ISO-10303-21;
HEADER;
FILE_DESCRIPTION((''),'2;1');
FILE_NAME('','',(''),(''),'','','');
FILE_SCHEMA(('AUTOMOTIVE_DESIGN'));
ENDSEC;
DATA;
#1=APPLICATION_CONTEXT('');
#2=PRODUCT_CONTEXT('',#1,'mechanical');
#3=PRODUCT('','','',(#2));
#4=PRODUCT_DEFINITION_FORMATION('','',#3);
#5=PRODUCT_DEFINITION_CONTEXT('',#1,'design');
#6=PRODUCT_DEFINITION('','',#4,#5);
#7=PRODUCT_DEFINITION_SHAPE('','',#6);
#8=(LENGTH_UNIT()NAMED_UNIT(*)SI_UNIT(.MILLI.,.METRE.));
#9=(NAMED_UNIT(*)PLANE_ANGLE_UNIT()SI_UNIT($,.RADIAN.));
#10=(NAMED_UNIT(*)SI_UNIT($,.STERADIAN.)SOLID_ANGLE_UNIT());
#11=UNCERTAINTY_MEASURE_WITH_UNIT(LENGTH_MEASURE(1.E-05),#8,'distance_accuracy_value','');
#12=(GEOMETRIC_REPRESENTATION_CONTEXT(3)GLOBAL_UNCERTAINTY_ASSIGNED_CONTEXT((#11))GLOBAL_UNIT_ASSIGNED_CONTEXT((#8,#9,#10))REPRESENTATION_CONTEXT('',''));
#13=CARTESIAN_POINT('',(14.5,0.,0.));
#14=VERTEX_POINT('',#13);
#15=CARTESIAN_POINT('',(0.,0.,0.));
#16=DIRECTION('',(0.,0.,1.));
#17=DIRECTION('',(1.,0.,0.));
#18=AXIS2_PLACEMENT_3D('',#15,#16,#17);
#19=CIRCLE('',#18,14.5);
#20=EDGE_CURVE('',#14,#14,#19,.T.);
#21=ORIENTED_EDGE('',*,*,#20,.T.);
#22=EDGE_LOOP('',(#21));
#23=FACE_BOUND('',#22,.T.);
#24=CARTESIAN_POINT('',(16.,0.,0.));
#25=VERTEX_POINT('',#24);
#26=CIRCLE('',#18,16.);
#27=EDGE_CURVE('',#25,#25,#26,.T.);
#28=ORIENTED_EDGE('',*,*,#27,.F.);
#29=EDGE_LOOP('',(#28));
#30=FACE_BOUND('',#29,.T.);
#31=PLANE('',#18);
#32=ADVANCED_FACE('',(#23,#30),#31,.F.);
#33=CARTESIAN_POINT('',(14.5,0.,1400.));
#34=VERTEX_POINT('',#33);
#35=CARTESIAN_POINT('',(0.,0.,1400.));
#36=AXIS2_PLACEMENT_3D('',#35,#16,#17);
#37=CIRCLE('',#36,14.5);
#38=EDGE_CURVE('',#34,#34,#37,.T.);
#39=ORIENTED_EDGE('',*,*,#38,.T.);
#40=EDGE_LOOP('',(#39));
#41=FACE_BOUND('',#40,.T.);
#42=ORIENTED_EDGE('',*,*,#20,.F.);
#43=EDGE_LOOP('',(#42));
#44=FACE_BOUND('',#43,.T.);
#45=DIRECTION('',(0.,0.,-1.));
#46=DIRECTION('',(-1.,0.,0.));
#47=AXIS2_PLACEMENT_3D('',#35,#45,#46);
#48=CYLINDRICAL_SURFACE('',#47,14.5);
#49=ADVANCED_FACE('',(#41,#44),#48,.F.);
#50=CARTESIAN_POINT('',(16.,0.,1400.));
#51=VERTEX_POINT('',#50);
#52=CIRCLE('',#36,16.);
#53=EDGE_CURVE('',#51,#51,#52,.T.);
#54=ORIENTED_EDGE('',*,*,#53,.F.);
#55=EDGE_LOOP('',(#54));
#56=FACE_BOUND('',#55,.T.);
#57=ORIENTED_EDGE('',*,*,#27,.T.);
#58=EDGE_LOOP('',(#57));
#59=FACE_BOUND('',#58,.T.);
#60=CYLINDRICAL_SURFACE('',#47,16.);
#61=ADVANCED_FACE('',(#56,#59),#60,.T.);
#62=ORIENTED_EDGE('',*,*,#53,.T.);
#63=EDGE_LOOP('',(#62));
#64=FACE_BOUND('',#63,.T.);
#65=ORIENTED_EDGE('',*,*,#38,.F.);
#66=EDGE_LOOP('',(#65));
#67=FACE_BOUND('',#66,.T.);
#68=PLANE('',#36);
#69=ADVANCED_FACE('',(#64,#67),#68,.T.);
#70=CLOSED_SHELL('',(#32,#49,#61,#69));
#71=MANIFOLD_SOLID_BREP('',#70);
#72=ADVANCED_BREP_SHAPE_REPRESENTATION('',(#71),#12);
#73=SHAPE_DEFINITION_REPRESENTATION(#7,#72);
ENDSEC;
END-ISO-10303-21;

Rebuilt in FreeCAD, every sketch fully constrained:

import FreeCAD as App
import Part
import Sketcher
from FreeCAD import Vector

doc = App.newDocument("Part")
body = doc.addObject("PartDesign::Body", "Body")

# Sketch on XY plane
sketch1 = body.newObject("Sketcher::SketchObject", "Sketch")
sketch1.AttachmentSupport = (doc.getObject("XY_Plane"), [""])
sketch1.MapMode = "FlatFace"
sketch1.addGeometry([
    Part.Circle(Vector(0, 0, 0), Vector(0, 0, 1), 16),
    Part.Circle(Vector(0, 0, 0), Vector(0, 0, 1), 14),
], False)
sketch1.addConstraint([
    Sketcher.Constraint("Coincident", 0, 3, -1, 1),
    Sketcher.Constraint("Coincident", 1, 3, -1, 1),
    Sketcher.Constraint("Diameter", 0, 32.0),
    Sketcher.Constraint("Diameter", 1, 29.0),
])
pad1 = body.newObject("PartDesign::Pad", "Pad")
pad1.Profile = sketch1
pad1.Length = 1400

doc.recompute()
